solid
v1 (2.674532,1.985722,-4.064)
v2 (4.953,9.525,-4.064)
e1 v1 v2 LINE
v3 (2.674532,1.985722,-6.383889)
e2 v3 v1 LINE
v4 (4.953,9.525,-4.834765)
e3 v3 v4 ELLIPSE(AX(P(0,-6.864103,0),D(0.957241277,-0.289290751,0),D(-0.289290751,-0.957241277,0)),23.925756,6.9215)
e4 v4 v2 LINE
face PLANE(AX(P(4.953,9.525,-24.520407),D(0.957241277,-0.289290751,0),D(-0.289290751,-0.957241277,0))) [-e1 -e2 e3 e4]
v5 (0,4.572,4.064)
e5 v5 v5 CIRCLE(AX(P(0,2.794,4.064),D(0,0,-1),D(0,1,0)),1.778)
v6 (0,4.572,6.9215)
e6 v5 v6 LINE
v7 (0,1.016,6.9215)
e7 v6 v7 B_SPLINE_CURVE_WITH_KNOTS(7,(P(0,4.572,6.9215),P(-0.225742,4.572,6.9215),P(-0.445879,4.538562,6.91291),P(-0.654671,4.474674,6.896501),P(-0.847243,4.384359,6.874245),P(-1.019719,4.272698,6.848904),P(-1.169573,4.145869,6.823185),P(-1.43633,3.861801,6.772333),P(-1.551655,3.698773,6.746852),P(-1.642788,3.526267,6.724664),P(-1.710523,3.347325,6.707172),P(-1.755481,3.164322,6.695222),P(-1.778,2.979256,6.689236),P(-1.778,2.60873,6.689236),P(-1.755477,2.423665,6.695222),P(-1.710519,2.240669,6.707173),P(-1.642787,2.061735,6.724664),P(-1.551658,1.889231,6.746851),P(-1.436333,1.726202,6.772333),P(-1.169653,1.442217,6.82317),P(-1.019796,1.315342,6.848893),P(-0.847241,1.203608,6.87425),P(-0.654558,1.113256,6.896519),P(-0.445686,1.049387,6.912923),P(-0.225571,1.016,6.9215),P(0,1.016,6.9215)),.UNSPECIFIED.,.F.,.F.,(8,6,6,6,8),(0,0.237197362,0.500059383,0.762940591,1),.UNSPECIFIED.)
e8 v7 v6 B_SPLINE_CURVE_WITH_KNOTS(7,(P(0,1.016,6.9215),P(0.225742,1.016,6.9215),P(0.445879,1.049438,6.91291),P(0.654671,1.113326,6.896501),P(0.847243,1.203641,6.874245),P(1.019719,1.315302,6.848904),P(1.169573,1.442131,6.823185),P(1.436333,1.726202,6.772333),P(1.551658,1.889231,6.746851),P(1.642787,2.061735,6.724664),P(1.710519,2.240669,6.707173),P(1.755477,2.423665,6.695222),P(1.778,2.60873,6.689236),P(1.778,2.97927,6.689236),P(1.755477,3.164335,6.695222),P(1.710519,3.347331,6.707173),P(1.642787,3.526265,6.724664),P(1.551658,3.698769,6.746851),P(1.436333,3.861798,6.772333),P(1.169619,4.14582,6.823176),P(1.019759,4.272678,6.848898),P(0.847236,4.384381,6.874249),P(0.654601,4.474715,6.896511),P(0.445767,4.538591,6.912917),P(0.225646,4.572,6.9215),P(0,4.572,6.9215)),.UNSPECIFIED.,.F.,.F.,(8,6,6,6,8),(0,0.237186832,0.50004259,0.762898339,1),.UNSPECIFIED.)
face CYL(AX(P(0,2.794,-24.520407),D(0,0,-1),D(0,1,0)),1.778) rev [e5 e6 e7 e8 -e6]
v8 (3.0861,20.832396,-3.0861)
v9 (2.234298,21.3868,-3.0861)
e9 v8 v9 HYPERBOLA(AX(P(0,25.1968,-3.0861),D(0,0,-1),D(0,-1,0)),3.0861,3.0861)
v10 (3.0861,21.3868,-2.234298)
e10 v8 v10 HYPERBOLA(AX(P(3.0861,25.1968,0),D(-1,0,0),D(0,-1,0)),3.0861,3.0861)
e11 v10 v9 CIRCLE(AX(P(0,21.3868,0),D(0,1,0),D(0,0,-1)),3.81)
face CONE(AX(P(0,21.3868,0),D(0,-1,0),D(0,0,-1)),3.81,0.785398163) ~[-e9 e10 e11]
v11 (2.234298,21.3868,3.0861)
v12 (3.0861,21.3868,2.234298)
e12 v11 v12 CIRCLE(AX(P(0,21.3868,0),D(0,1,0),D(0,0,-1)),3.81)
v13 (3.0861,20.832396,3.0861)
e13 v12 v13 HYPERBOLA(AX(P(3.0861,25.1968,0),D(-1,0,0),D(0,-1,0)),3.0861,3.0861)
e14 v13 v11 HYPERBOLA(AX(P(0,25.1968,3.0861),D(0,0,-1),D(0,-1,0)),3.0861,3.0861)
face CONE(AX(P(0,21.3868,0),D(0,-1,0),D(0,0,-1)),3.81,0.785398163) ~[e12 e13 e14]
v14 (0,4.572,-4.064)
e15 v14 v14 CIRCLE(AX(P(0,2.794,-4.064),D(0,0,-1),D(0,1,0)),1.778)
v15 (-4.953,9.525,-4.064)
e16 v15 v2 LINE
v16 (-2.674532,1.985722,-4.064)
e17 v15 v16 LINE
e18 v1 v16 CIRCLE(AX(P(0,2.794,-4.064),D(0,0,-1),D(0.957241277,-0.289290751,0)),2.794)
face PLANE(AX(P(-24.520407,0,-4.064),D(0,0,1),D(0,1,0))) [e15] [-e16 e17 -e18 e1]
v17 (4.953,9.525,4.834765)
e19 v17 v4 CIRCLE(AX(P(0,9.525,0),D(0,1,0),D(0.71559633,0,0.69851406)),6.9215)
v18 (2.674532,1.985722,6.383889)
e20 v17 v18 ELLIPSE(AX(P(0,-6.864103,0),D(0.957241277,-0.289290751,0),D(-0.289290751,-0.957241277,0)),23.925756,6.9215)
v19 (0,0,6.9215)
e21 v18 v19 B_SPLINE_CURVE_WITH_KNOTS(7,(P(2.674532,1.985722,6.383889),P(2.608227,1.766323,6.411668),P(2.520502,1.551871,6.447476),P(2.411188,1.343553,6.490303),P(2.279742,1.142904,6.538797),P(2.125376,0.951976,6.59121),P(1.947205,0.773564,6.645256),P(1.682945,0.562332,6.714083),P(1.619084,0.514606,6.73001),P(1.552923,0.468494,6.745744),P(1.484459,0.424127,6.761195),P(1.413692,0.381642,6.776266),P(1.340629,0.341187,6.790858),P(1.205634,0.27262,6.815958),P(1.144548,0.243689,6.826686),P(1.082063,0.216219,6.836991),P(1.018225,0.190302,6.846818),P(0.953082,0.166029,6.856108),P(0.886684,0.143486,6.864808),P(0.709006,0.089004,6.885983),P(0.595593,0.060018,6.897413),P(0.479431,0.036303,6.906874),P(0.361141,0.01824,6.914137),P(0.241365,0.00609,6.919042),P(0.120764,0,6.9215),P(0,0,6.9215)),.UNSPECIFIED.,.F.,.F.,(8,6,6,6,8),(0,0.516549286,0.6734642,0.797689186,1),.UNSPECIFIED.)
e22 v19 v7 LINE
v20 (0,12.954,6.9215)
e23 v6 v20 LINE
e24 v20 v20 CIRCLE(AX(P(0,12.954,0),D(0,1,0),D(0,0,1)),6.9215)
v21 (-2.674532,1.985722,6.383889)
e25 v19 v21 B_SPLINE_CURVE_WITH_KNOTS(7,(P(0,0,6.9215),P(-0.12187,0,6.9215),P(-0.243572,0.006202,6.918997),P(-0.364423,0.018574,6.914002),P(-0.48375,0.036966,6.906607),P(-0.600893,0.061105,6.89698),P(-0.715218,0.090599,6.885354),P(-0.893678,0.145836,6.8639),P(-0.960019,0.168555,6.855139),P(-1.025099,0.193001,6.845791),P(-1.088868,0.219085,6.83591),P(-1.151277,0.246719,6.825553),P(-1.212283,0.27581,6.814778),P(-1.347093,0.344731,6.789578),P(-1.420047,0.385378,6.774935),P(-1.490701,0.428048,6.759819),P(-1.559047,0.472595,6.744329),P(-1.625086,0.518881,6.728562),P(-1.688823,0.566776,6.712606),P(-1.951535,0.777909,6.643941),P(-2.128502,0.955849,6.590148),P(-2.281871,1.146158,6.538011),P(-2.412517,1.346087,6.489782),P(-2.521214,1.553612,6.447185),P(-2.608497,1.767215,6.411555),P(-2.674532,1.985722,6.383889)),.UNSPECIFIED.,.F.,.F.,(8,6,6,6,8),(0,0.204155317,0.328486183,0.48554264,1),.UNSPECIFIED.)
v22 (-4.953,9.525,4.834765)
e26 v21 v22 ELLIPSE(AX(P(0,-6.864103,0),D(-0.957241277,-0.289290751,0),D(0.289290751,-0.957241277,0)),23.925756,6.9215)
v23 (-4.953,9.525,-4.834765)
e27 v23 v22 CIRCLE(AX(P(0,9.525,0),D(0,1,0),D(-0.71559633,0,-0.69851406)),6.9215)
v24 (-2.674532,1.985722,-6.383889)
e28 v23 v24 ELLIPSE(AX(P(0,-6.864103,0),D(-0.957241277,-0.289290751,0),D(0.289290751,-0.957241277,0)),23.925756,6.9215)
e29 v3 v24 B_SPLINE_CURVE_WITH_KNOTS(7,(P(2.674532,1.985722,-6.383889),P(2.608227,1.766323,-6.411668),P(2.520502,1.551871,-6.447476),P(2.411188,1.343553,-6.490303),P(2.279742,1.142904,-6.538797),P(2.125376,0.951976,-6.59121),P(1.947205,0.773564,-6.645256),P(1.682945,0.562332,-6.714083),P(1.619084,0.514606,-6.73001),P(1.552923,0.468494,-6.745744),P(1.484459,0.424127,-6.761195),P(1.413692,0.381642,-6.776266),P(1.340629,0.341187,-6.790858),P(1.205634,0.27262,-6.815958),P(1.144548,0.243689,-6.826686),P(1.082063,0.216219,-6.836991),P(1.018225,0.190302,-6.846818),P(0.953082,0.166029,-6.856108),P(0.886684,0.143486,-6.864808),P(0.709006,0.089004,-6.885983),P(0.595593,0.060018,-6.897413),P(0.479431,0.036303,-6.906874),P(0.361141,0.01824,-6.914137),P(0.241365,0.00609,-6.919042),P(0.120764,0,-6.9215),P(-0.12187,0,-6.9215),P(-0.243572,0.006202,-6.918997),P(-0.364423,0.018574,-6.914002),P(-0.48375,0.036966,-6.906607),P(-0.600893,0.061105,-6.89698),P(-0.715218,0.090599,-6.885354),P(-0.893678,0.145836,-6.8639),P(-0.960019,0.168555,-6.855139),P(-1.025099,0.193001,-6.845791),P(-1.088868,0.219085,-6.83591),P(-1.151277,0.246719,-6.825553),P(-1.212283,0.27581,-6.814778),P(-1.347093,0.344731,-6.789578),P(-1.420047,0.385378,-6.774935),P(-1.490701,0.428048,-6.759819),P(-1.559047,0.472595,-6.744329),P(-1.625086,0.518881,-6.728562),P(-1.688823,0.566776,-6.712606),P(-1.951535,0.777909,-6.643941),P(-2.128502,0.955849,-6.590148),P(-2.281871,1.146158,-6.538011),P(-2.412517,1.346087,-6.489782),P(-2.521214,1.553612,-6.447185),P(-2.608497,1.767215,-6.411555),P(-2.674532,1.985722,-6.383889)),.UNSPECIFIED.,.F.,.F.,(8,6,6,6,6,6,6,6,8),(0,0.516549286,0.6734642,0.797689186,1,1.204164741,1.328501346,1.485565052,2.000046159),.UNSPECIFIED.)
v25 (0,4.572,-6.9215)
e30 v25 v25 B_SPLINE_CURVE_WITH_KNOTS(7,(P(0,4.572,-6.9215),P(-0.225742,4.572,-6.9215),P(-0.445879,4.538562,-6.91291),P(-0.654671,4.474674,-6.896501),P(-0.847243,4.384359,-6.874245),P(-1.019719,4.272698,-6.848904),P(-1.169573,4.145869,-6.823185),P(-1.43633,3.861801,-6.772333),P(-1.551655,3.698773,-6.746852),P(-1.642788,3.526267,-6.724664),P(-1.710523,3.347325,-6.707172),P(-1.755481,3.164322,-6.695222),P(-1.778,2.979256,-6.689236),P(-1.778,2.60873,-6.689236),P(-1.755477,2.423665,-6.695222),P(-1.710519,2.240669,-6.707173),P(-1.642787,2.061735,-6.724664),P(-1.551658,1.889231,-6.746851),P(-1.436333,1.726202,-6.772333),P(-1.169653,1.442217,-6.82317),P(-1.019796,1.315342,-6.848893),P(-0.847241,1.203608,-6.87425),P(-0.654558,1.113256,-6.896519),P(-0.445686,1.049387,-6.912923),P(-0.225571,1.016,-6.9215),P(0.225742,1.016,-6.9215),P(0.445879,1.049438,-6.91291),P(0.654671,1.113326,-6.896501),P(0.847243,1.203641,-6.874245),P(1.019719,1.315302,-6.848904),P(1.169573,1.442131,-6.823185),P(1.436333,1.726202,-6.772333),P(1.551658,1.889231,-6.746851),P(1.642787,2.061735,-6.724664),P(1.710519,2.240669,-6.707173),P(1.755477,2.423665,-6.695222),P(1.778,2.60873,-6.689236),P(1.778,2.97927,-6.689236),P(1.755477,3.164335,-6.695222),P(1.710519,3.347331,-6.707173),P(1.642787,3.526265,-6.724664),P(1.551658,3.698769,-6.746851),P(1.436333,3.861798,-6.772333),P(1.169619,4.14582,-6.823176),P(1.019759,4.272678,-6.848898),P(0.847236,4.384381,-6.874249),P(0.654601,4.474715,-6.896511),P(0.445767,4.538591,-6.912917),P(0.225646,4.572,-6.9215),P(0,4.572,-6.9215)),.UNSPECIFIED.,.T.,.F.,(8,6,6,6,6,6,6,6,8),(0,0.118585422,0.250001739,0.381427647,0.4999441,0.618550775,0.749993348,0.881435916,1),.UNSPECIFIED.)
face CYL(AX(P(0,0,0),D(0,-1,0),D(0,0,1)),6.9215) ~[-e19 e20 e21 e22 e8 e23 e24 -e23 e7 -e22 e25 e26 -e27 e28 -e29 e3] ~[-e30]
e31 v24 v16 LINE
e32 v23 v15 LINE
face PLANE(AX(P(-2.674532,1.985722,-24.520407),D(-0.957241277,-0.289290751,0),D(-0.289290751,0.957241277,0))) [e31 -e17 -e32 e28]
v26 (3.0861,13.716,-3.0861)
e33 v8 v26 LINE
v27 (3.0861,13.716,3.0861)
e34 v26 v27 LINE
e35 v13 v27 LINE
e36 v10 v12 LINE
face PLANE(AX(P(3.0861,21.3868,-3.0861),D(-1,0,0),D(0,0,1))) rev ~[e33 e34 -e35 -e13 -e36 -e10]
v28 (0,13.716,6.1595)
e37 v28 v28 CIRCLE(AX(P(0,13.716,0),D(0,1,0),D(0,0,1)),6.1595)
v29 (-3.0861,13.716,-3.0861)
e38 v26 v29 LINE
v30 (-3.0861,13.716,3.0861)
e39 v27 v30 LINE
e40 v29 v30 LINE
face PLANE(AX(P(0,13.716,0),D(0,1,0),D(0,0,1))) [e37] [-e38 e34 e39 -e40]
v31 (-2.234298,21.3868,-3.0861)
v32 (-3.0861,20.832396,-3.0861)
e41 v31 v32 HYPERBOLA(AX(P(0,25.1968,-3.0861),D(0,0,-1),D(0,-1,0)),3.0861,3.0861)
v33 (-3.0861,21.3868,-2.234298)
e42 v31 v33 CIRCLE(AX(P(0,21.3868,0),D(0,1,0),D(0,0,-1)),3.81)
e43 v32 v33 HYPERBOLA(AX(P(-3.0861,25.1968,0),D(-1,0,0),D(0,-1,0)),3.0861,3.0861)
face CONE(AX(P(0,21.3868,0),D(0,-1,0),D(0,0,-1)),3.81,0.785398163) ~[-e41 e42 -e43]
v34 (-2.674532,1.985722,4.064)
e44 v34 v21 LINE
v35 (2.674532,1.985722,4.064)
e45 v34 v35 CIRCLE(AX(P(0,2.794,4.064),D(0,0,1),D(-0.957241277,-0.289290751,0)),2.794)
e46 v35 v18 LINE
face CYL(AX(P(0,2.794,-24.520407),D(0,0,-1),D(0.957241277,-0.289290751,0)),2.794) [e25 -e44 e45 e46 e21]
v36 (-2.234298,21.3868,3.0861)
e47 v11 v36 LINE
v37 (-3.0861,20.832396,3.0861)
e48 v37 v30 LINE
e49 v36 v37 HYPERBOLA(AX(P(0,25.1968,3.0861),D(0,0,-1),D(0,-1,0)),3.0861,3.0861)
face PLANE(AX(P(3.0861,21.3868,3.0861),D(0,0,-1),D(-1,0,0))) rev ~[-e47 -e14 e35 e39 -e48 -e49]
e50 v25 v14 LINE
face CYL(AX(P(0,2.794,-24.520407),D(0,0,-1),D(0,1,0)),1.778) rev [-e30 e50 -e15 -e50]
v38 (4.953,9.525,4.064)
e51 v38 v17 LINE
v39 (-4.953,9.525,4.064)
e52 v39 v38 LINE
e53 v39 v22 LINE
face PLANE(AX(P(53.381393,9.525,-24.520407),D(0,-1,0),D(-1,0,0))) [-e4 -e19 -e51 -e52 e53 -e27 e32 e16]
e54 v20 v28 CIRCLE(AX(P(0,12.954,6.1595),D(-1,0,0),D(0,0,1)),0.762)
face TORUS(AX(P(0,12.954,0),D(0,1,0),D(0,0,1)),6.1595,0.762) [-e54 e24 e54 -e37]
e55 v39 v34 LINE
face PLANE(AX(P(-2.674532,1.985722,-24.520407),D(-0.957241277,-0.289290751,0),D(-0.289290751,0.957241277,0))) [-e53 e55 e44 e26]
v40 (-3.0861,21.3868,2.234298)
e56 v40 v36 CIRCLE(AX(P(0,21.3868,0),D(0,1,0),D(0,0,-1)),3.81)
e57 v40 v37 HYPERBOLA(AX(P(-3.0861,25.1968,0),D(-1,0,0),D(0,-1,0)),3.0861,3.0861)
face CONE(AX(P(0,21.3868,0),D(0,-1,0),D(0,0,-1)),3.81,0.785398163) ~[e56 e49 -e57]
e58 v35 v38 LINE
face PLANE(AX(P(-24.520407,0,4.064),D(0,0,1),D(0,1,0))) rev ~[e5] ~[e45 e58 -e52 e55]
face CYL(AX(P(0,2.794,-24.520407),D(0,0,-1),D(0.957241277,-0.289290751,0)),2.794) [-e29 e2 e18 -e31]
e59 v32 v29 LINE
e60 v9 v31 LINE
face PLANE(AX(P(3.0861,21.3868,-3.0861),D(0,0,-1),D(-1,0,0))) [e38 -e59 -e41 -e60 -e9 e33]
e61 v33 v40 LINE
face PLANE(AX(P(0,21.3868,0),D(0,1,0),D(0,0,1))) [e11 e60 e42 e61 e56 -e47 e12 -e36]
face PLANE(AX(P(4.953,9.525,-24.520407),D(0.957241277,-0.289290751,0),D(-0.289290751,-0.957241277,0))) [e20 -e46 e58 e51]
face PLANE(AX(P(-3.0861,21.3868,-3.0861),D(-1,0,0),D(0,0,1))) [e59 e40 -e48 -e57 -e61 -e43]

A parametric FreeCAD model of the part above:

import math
import FreeCAD as App
import Part
import Sketcher

V = App.Vector
Q = App.Units.Quantity


def edges_at(feature, points):
    """Names of the edges that pass closest to the given points."""
    edges = feature.Shape.Edges
    near = lambda p: min(range(len(edges)), key=lambda i: edges[i].distToShape(Part.Vertex(*p))[0])
    return sorted({f"Edge{near(p) + 1}" for p in points})

doc = App.newDocument("Part")
body = doc.addObject("PartDesign::Body", "Body")

sketch1 = body.newObject("Sketcher::SketchObject", "Sketch")
sketch1.AttachmentSupport = (doc.getObject("XZ_Plane"), [""])
sketch1.MapMode = "FlatFace"
sketch1.addGeometry(Part.Circle(V(0, 0, 0), V(0, 0, 1), 7), False)
sketch1.addConstraint([
    Sketcher.Constraint("Coincident", 0, 3, -1, 1),
    Sketcher.Constraint("Diameter", 0, Q("0.545 in")),
])
pad1 = body.newObject("PartDesign::Pad", "Pad")
pad1.Profile = sketch1
pad1.Length = Q("0.54 in")
pad1.Reversed = True

sketch2 = body.newObject("Sketcher::SketchObject", "Sketch001")
sketch2.AttachmentSupport = (doc.getObject("XZ_Plane"), [""])
sketch2.MapMode = "FlatFace"
sketch2.AttachmentOffset = App.Placement(V(0, 0, -0.54 * 25.4), App.Rotation())
sketch2.addGeometry(Part.Circle(V(0, 0, 0), V(0, 0, 1), 6), False)
sketch2.addConstraint([
    Sketcher.Constraint("Coincident", 0, 3, -1, 1),
    Sketcher.Constraint("Diameter", 0, Q("0.477 in")),
])
pad2 = body.newObject("PartDesign::Pad", "Pad001")
pad2.Profile = sketch2
pad2.Length = Q("0.302 in")
pad2.Reversed = True

sketch3 = body.newObject("Sketcher::SketchObject", "Sketch002")
sketch3.AttachmentSupport = (doc.getObject("XY_Plane"), [""])
sketch3.MapMode = "FlatFace"
sketch3.addGeometry([
    Part.LineSegment(V(-5.4, 19.8, 0), V(-3.8, 21.4, 0)),
    Part.LineSegment(V(-3.8, 21.4, 0), V(-5.4, 21.4, 0)),
    Part.LineSegment(V(-5.4, 21.4, 0), V(-5.4, 19.8, 0)),
], False)
sketch3.addConstraint([
    Sketcher.Constraint("Coincident", 0, 2, 1, 1),
    Sketcher.Constraint("Coincident", 1, 2, 2, 1),
    Sketcher.Constraint("Coincident", 2, 2, 0, 1),
    Sketcher.Constraint("Horizontal", 1),
    Sketcher.Constraint("Vertical", 2),
    Sketcher.Constraint("Equal", 1, 2),
    Sketcher.Constraint("DistanceX", 0, 2, -1, 1, Q("0.15 in")),
    Sketcher.Constraint("DistanceX", 1, 2, 1, 1, Q("0.0635 in")),
    Sketcher.Constraint("DistanceY", -1, 1, 0, 2, Q("0.842 in")),
])
groove = body.newObject("PartDesign::Groove", "Groove")
groove.Profile = sketch3
groove.ReferenceAxis = (sketch3, ["V_Axis"])
groove.Angle = 360

sketch4 = body.newObject("Sketcher::SketchObject", "Sketch003")
sketch4.AttachmentSupport = (doc.getObject("XZ_Plane"), [""])
sketch4.MapMode = "FlatFace"
sketch4.AttachmentOffset = App.Placement(V(0, 0, -0.842 * 25.4), App.Rotation())
sketch4.addGeometry([
    Part.LineSegment(V(11, 11, 0), V(11, -11, 0)),
    Part.LineSegment(V(11, -11, 0), V(-11, -11, 0)),
    Part.LineSegment(V(-11, -11, 0), V(-11, 11, 0)),
    Part.LineSegment(V(-11, 11, 0), V(11, 11, 0)),
    Part.LineSegment(V(-3, -3, 0), V(3, -3, 0)),
    Part.LineSegment(V(3, -3, 0), V(3, 3, 0)),
    Part.LineSegment(V(3, 3, 0), V(-3, 3, 0)),
    Part.LineSegment(V(-3, 3, 0), V(-3, -3, 0)),
], False)
sketch4.addConstraint([
    Sketcher.Constraint("Coincident", 0, 2, 1, 1),
    Sketcher.Constraint("Coincident", 1, 2, 2, 1),
    Sketcher.Constraint("Coincident", 2, 2, 3, 1),
    Sketcher.Constraint("Coincident", 3, 2, 0, 1),
    Sketcher.Constraint("Coincident", 4, 2, 5, 1),
    Sketcher.Constraint("Coincident", 5, 2, 6, 1),
    Sketcher.Constraint("Coincident", 6, 2, 7, 1),
    Sketcher.Constraint("Coincident", 7, 2, 4, 1),
    Sketcher.Constraint("Vertical", 0),
    Sketcher.Constraint("Horizontal", 1),
    Sketcher.Constraint("Vertical", 2),
    Sketcher.Constraint("Horizontal", 3),
    Sketcher.Constraint("Horizontal", 4),
    Sketcher.Constraint("Vertical", 5),
    Sketcher.Constraint("Horizontal", 6),
    Sketcher.Constraint("Vertical", 7),
    Sketcher.Constraint("Symmetric", 0, 2, 2, 2, -1, 1),
    Sketcher.Constraint("Symmetric", 4, 2, 6, 2, -1, 1),
    Sketcher.Constraint("Equal", 3, 0),
    Sketcher.Constraint("Equal", 6, 5),
    Sketcher.Constraint("DistanceX", 4, 1, 4, 2, Q("0.243 in")),
    Sketcher.Constraint("DistanceX", 1, 2, 1, 1, Q("21.642 mm")),
])
pocket1 = body.newObject("PartDesign::Pocket", "Pocket")
pocket1.Profile = sketch4
pocket1.Length = Q("0.302 in")
pocket1.Reversed = True
doc.recompute()

fillet = body.newObject("PartDesign::Fillet", "Fillet")
fillet.Base = (pocket1, edges_at(pocket1, [(0, 13.716, -6.921)]))
fillet.Radius = Q("0.03 in")

sketch5 = body.newObject("Sketcher::SketchObject", "Sketch004")
sketch5.AttachmentSupport = (doc.getObject("YZ_Plane"), [""])
sketch5.MapMode = "FlatFace"
sketch5.addGeometry([
    Part.LineSegment(V(10, 4, 0), V(0, 4, 0)),
    Part.LineSegment(V(0, 4, 0), V(0, -4, 0)),
    Part.LineSegment(V(0, -4, 0), V(10, -4, 0)),
    Part.LineSegment(V(10, -4, 0), V(10, 4, 0)),
], False)
sketch5.addConstraint([
    Sketcher.Constraint("Coincident", 0, 2, 1, 1),
    Sketcher.Constraint("Coincident", 1, 2, 2, 1),
    Sketcher.Constraint("Coincident", 2, 2, 3, 1),
    Sketcher.Constraint("Coincident", 3, 2, 0, 1),
    Sketcher.Constraint("Horizontal", 0),
    Sketcher.Constraint("Vertical", 1),
    Sketcher.Constraint("Horizontal", 2),
    Sketcher.Constraint("Vertical", 3),
    Sketcher.Constraint("Symmetric", 0, 2, 1, 2, -1, 1),
    Sketcher.Constraint("DistanceY", 1, 2, 1, 1, Q("0.32 in")),
    Sketcher.Constraint("DistanceX", 0, 2, 0, 1, Q("0.375 in")),
])
pocket2 = body.newObject("PartDesign::Pocket", "Pocket001")
pocket2.Profile = sketch5
pocket2.Type = "ThroughAll"
pocket2.Midplane = True

sketch6 = body.newObject("Sketcher::SketchObject", "Sketch005")
sketch6.AttachmentSupport = (doc.getObject("XY_Plane"), [""])
sketch6.MapMode = "FlatFace"
sketch6.addGeometry([
    Part.LineSegment(V(53.4, 9.5, 0), V(5, 9.5, 0)),
    Part.LineSegment(V(5, 9.5, 0), V(2.7, 2, 0)),
    Part.ArcOfCircle(Part.Circle(V(0, 2.8, 0), V(0, 0, 1), 2.8), math.radians(-163), math.radians(-17)),
    Part.LineSegment(V(-2.7, 2, 0), V(-5, 9.5, 0)),
    Part.LineSegment(V(-5, 9.5, 0), V(-53.4, 9.5, 0)),
    Part.LineSegment(V(-53.4, 9.5, 0), V(-53.4, -83.4, 0)),
    Part.LineSegment(V(-53.4, -83.4, 0), V(53.4, -83.4, 0)),
    Part.LineSegment(V(53.4, -83.4, 0), V(53.4, 9.5, 0)),
], False)
sketch6.addConstraint([
    Sketcher.Constraint("Coincident", 0, 2, 1, 1),
    Sketcher.Constraint("Tangent", 1, 2, 2, 2),
    Sketcher.Constraint("Tangent", 2, 1, 3, 1),
    Sketcher.Constraint("Coincident", 3, 2, 4, 1),
    Sketcher.Constraint("Coincident", 4, 2, 5, 1),
    Sketcher.Constraint("Coincident", 5, 2, 6, 1),
    Sketcher.Constraint("Coincident", 6, 2, 7, 1),
    Sketcher.Constraint("Coincident", 7, 2, 0, 1),
    Sketcher.Constraint("Horizontal", 0),
    Sketcher.Constraint("Horizontal", 4),
    Sketcher.Constraint("Vertical", 5),
    Sketcher.Constraint("Horizontal", 6),
    Sketcher.Constraint("Vertical", 7),
    Sketcher.Constraint("Symmetric", 1, 2, 2, 1, -2),
    Sketcher.Constraint("Symmetric", 4, 2, 7, 2, -2),
    Sketcher.Constraint("Radius", 2, Q("0.11 in")),
    Sketcher.Constraint("DistanceY", -1, 1, 2, 3, Q("0.11 in")),
    Sketcher.Constraint("DistanceX", 3, 2, 0, 2, Q("0.39 in")),
    Sketcher.Constraint("DistanceY", -1, 1, 0, 2, Q("0.375 in")),
    Sketcher.Constraint("DistanceX", 0, 2, 0, 1, Q("48.428393 mm")),
    Sketcher.Constraint("DistanceY", 5, 2, 5, 1, Q("92.919786 mm")),
])
pocket3 = body.newObject("PartDesign::Pocket", "Pocket002")
pocket3.Profile = sketch6
pocket3.Type = "ThroughAll"
pocket3.Midplane = True

sketch7 = body.newObject("Sketcher::SketchObject", "Sketch006")
sketch7.AttachmentSupport = (doc.getObject("XY_Plane"), [""])
sketch7.MapMode = "FlatFace"
sketch7.addGeometry(Part.Circle(V(0, 2.8, 0), V(0, 0, 1), 1.8), False)
sketch7.addConstraint([
    Sketcher.Constraint("PointOnObject", 0, 3, -2),
    Sketcher.Constraint("Diameter", 0, Q("0.14 in")),
    Sketcher.Constraint("DistanceY", -1, 1, 0, 3, Q("0.11 in")),
])
pocket4 = body.newObject("PartDesign::Pocket", "Pocket003")
pocket4.Profile = sketch7
pocket4.Type = "ThroughAll"
pocket4.Midplane = True

doc.recompute()
